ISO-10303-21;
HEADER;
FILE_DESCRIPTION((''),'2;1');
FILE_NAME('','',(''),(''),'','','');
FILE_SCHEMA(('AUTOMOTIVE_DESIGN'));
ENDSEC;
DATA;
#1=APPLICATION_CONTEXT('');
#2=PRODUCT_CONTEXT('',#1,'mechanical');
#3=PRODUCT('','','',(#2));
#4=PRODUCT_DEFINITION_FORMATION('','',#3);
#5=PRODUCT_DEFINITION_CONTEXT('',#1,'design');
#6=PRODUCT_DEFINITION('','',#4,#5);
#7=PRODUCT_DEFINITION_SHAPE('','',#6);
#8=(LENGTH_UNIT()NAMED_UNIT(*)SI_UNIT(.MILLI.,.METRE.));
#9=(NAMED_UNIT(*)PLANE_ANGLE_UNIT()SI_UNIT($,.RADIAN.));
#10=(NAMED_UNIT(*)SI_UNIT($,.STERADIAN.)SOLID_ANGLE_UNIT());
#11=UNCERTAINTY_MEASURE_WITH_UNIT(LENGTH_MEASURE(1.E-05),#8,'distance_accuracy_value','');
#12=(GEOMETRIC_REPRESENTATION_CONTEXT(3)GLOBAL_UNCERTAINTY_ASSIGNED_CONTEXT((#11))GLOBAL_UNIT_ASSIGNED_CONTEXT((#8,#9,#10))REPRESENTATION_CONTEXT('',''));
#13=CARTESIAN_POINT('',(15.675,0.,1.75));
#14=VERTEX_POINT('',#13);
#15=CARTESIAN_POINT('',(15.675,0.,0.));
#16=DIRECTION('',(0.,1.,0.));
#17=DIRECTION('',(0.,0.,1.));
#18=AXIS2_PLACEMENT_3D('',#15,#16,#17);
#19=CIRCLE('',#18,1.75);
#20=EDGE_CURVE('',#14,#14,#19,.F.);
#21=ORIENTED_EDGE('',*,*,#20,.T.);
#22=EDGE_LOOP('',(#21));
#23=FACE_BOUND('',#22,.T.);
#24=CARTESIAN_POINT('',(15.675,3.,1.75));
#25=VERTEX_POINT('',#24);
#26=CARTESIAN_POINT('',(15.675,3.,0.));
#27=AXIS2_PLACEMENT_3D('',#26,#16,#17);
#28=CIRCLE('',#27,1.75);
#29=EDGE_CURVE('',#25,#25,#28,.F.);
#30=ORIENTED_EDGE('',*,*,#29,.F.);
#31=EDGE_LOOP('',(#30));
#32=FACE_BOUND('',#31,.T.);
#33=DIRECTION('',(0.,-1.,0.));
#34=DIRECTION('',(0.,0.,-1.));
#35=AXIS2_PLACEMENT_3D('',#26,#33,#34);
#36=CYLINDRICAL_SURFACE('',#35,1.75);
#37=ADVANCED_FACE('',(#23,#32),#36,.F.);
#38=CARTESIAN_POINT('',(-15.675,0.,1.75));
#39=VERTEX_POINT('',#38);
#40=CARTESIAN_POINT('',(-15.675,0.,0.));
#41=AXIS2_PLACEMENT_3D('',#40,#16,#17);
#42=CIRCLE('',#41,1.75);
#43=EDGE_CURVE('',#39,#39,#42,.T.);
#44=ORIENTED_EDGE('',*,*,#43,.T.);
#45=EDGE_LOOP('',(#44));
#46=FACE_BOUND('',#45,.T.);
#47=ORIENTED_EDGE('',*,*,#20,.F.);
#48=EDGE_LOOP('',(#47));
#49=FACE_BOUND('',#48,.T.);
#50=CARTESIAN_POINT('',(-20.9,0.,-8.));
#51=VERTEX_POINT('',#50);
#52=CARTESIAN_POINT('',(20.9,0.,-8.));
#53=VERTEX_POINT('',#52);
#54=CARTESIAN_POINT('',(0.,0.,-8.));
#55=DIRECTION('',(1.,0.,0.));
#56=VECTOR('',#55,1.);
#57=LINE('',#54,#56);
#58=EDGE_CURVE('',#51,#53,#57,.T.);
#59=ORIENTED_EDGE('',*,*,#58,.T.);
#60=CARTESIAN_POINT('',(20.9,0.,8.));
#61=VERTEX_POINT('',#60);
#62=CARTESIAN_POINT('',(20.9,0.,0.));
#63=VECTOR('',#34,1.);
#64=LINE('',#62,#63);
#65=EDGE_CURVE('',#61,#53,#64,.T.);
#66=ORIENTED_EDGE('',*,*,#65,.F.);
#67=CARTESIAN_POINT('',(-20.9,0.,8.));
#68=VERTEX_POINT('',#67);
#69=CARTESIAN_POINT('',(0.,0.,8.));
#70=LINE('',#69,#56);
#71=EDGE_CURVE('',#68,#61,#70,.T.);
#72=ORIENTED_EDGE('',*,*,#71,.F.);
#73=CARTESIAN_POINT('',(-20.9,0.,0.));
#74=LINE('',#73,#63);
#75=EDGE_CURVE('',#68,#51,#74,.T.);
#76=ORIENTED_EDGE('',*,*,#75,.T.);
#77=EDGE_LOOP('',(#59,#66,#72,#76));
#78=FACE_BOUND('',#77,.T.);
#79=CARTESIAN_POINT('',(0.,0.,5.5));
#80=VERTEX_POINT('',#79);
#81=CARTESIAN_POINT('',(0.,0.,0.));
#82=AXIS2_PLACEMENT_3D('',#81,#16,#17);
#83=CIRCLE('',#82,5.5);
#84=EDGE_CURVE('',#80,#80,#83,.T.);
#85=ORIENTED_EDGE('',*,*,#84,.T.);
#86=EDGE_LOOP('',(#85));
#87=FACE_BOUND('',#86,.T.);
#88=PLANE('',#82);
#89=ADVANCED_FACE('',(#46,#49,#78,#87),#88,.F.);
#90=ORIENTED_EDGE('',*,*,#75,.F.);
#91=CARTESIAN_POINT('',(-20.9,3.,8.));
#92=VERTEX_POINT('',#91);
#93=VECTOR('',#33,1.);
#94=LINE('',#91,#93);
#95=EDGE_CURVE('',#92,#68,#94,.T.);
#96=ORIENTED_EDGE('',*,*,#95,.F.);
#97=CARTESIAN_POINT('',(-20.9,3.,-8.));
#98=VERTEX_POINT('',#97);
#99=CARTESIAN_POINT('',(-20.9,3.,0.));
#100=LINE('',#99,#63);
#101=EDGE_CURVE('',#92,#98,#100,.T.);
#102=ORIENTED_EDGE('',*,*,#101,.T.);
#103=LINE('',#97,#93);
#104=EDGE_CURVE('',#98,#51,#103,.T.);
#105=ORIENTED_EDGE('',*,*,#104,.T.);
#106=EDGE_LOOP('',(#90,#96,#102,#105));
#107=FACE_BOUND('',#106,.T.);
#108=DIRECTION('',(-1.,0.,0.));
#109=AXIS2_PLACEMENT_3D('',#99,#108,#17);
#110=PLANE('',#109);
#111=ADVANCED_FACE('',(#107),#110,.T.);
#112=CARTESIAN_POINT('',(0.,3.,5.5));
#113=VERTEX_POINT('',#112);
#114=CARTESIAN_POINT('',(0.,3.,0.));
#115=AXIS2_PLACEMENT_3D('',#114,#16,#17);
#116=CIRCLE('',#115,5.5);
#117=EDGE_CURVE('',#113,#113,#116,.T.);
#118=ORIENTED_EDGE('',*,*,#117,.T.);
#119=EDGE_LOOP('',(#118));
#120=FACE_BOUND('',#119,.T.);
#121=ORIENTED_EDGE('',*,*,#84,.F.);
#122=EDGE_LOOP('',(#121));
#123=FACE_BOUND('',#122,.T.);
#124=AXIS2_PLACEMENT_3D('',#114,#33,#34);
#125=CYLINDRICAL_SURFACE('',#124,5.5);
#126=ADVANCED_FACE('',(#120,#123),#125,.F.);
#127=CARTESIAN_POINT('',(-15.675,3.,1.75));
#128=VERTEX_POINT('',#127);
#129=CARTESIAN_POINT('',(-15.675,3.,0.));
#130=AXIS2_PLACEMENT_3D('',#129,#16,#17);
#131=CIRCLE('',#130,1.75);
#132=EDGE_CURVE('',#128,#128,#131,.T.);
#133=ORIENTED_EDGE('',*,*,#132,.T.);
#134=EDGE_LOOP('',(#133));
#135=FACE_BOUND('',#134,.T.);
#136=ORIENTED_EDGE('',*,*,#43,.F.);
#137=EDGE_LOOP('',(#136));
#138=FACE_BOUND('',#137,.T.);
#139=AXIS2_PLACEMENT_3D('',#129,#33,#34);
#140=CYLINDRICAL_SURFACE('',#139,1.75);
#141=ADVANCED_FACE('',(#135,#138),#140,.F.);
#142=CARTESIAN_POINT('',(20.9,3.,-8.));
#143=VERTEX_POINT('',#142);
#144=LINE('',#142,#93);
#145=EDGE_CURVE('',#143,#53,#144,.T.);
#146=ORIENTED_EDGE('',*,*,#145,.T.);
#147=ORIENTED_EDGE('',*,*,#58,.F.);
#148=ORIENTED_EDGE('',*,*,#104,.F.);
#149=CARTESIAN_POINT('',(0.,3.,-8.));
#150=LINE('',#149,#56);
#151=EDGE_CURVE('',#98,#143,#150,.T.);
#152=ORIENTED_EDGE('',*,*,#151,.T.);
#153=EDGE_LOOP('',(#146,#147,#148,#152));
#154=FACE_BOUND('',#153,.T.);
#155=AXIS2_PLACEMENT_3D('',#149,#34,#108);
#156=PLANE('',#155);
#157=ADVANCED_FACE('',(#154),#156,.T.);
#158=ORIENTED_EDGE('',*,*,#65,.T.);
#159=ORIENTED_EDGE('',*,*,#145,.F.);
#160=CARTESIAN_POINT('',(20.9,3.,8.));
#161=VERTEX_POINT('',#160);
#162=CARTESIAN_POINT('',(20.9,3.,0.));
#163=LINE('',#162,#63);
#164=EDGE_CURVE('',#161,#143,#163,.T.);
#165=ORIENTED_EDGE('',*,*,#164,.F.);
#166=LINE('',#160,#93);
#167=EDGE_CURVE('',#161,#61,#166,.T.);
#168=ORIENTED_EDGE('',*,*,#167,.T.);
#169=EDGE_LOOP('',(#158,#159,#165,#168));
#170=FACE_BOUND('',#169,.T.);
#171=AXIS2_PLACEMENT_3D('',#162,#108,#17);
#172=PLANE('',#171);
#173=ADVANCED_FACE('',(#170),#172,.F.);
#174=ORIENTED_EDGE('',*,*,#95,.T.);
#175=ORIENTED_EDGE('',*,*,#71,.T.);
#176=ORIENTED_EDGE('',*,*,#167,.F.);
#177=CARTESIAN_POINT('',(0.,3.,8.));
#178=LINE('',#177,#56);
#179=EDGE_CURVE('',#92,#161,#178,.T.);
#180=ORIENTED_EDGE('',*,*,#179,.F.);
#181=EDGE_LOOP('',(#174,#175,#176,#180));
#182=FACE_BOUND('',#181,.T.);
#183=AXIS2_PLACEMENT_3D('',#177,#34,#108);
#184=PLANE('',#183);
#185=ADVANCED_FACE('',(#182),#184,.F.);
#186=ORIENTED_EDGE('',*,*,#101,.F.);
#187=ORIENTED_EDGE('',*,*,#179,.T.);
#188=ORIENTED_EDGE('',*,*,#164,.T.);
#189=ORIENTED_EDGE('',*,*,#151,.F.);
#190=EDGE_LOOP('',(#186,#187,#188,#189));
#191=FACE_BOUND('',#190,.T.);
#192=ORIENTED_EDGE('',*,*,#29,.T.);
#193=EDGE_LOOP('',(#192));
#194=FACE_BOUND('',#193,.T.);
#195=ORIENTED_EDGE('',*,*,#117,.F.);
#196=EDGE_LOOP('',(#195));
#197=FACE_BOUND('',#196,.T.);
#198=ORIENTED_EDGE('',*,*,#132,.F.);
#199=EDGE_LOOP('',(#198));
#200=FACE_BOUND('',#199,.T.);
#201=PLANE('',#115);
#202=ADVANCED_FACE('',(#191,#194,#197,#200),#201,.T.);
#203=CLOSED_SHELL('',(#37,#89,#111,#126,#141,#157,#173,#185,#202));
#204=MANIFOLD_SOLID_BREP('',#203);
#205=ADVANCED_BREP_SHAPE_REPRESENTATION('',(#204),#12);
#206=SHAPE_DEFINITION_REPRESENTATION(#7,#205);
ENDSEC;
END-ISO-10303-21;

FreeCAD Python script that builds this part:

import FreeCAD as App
import Part
import Sketcher


def add_polygon(sketch, points):
    """Adds a closed chain of lines whose ends are joined by coincident constraints."""
    first, n = sketch.GeometryCount, len(points)
    for a, b in zip(points, points[1:] + points[:1]):
        sketch.addGeometry(Part.LineSegment(App.Vector(*a, 0), App.Vector(*b, 0)), False)
    for i in range(n):
        sketch.addConstraint(Sketcher.Constraint("Coincident", first + i, 2, first + (i + 1) % n, 1))

doc = App.newDocument("Part")
params = doc.addObject("Spreadsheet::Sheet", "Params")
for row, (alias, value) in enumerate([
    ("sketch1_diameter", "11 mm"),
    ("sketch1_diameter2", "3.5 mm"),
    ("sketch1_height", "16 mm"),
    ("sketch1_width", "41.8 mm"),
    ("pad1_length", "3 mm"),
], start=1):
    params.set(f"A{row}", alias)
    params.set(f"B{row}", "=" + value)
    params.setAlias(f"B{row}", alias)

body = doc.addObject("PartDesign::Body", "Body")

sketch1 = body.newObject("Sketcher::SketchObject", "Sketch")
sketch1.AttachmentSupport = (doc.getObject("XZ_Plane"), [""])
sketch1.MapMode = "FlatFace"
add_polygon(sketch1, [(-20.9, -8), (-20.9, 8), (20.9, 8), (20.9, -8)])
sketch1.addGeometry(Part.Circle(App.Vector(-15.7, 0, 0), App.Vector(0, 0, 1), 1.8), False)
sketch1.addGeometry(Part.Circle(App.Vector(0, 0, 0), App.Vector(0, 0, 1), 5.5), False)
sketch1.addGeometry(Part.Circle(App.Vector(15.7, 0, 0), App.Vector(0, 0, 1), 1.8), False)
sketch1.addConstraint([
    Sketcher.Constraint("Vertical", 0),
    Sketcher.Constraint("Horizontal", 1),
    Sketcher.Constraint("Vertical", 2),
    Sketcher.Constraint("Horizontal", 3),
    Sketcher.Constraint("Coincident", 5, 3, -1, 1),
    Sketcher.Constraint("Equal", 4, 6),
    Sketcher.Constraint("Symmetric", 4, 3, 6, 3, -1, 1),
    Sketcher.Constraint("Symmetric", 0, 2, 2, 2, -1, 1),
    Sketcher.Constraint("PointOnObject", 4, 3, -1),
    Sketcher.Constraint("Diameter", 5, 11.0),
    Sketcher.Constraint("Diameter", 4, 3.5),
    Sketcher.Constraint("DistanceY", 0, 1, 0, 2, 16.0),
    Sketcher.Constraint("DistanceX", 1, 1, 1, 2, 41.8),
    Sketcher.Constraint("DistanceX", 4, 3, 6, 3, 31.35),
])
sketch1.setExpression("Constraints[13]", "Params.sketch1_diameter")
sketch1.setExpression("Constraints[14]", "Params.sketch1_diameter2")
sketch1.setExpression("Constraints[15]", "Params.sketch1_height")
sketch1.setExpression("Constraints[16]", "Params.sketch1_width")
pad1 = body.newObject("PartDesign::Pad", "Pad")
pad1.Profile = sketch1
pad1.setExpression("Length", "Params.pad1_length")
pad1.Reversed = True

doc.recompute()
